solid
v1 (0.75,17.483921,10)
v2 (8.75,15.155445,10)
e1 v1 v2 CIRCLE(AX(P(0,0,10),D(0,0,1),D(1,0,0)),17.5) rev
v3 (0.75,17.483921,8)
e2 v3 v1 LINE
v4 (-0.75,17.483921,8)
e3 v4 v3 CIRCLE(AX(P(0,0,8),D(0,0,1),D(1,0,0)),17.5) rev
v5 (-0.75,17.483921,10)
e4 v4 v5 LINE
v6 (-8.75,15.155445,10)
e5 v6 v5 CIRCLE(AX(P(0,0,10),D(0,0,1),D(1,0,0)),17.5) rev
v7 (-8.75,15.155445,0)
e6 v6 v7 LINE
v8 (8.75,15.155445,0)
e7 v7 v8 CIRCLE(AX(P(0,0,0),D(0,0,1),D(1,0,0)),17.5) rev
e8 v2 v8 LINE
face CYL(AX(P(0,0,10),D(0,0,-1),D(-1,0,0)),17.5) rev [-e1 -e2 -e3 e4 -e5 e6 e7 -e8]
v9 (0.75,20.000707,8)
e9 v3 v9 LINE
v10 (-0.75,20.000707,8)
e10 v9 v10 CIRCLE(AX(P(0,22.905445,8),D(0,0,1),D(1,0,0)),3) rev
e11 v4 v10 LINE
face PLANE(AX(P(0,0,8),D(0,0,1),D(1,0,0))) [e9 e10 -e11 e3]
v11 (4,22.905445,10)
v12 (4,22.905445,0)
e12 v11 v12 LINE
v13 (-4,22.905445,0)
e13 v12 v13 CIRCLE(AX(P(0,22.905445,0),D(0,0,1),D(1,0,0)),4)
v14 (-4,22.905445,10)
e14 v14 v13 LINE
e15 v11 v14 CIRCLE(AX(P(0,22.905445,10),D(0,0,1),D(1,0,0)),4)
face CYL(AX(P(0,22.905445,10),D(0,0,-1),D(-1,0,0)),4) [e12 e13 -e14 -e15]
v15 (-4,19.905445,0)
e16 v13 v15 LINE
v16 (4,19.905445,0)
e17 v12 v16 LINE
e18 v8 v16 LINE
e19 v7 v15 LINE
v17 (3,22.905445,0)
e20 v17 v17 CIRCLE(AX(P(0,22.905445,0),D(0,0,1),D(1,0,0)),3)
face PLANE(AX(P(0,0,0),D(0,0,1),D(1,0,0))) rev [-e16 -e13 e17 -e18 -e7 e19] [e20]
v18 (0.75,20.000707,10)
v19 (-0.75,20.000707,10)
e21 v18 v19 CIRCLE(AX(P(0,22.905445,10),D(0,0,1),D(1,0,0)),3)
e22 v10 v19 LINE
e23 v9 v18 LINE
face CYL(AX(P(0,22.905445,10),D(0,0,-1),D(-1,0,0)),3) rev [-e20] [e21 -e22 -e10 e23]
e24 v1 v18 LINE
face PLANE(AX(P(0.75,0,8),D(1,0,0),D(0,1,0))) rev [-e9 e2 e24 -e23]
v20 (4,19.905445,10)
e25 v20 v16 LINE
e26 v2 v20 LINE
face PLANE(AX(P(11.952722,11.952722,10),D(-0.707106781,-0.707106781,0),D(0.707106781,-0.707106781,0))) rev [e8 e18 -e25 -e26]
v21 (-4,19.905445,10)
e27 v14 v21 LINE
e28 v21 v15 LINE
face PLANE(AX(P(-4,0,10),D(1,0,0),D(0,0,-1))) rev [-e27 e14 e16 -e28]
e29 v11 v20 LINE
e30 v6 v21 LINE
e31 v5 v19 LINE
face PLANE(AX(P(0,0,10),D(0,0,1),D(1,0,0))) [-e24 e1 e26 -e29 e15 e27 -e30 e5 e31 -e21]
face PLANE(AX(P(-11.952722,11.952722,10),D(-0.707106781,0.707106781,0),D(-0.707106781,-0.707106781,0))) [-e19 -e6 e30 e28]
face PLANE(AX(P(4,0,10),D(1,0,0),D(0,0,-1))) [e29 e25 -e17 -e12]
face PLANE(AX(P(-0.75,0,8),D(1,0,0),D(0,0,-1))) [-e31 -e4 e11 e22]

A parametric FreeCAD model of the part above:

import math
import FreeCAD as App
import Part
import Sketcher
from FreeCAD import Vector

doc = App.newDocument("Part")
body = doc.addObject("PartDesign::Body", "Body")

# Sketch on XY plane
sketch1 = body.newObject("Sketcher::SketchObject", "Sketch")
sketch1.AttachmentSupport = (doc.getObject("XY_Plane"), [""])
sketch1.MapMode = "FlatFace"
sketch1.addGeometry(Part.LineSegment(Vector(-4, 19.905445, 0), Vector(-8.75, 15.155445, 0)), False)
sketch1.addGeometry(Part.ArcOfCircle(Part.Circle(Vector(0, 0, 0), Vector(0, 0, 1), 17.5), math.radians(60), math.radians(120)), False)
sketch1.addGeometry(Part.LineSegment(Vector(8.75, 15.155445, 0), Vector(4, 19.905445, 0)), False)
sketch1.addGeometry(Part.LineSegment(Vector(4, 19.905445, 0), Vector(4, 22.905445, 0)), False)
sketch1.addGeometry(Part.ArcOfCircle(Part.Circle(Vector(0, 22.905445, 0), Vector(0, 0, 1), 4), math.radians(0), math.radians(180)), False)
sketch1.addGeometry(Part.LineSegment(Vector(-4, 22.905445, 0), Vector(-4, 19.905445, 0)), False)
sketch1.addGeometry(Part.Circle(Vector(0, 22.905445, 0), Vector(0, 0, 1), 3), False)
sketch1.addConstraint(Sketcher.Constraint("Coincident", 0, 2, 1, 2))
sketch1.addConstraint(Sketcher.Constraint("Coincident", 1, 1, 2, 1))
sketch1.addConstraint(Sketcher.Constraint("Coincident", 2, 2, 3, 1))
sketch1.addConstraint(Sketcher.Constraint("Tangent", 3, 2, 4, 1))
sketch1.addConstraint(Sketcher.Constraint("Tangent", 4, 2, 5, 1))
sketch1.addConstraint(Sketcher.Constraint("Coincident", 5, 2, 0, 1))
sketch1.addConstraint(Sketcher.Constraint("Vertical", 3))
sketch1.addConstraint(Sketcher.Constraint("Vertical", 5))
sketch1.addConstraint(Sketcher.Constraint("Coincident", 1, 3, -1, 1))
sketch1.addConstraint(Sketcher.Constraint("Coincident", 6, 3, 4, 3))
sketch1.addConstraint(Sketcher.Constraint("Symmetric", 2, 2, 5, 2, -2))
sketch1.addConstraint(Sketcher.Constraint("Perpendicular", 0, 2))
sketch1.addConstraint(Sketcher.Constraint("Horizontal", 0, 2, 1, 1))
sketch1.addConstraint(Sketcher.Constraint("Diameter", 6, 6.0))
sketch1.addConstraint(Sketcher.Constraint("Radius", 4, 4.0))
sketch1.addConstraint(Sketcher.Constraint("Radius", 1, 17.5))
sketch1.addConstraint(Sketcher.Constraint("DistanceY", 3, 1, 3, 2, 3.0))
sketch1.addConstraint(Sketcher.Constraint("DistanceX", 0, 2, 1, 1, 17.5))
pad1 = body.newObject("PartDesign::Pad", "Pad")
pad1.Profile = sketch1
pad1.Length = 10

# Sketch on XY plane
sketch2 = body.newObject("Sketcher::SketchObject", "Sketch001")
sketch2.AttachmentSupport = (doc.getObject("XY_Plane"), [""])
sketch2.MapMode = "FlatFace"
sketch2.AttachmentOffset = App.Placement(Vector(0, 0, 8), App.Rotation())
sketch2.addGeometry(Part.ArcOfCircle(Part.Circle(Vector(0, 22.905445, 0), Vector(0, 0, 1), 3), math.radians(-90), math.radians(-75.522488)), False)
sketch2.addGeometry(Part.ArcOfCircle(Part.Circle(Vector(0, 22.905445, 0), Vector(0, 0, 1), 3), math.radians(-104.477512), math.radians(-90)), False)
sketch2.addGeometry(Part.LineSegment(Vector(-0.75, 20.000707, 0), Vector(-0.75, 17.483921, 0)), False)
sketch2.addGeometry(Part.ArcOfCircle(Part.Circle(Vector(0, -0.000002, 0), Vector(0, 0, 1), 17.500002), math.radians(90), math.radians(92.456286)), False)
sketch2.addGeometry(Part.ArcOfCircle(Part.Circle(Vector(0, -0.000002, 0), Vector(0, 0, 1), 17.500002), math.radians(87.543714), math.radians(90)), False)
sketch2.addGeometry(Part.LineSegment(Vector(0.75, 17.483921, 0), Vector(0.75, 20.000707, 0)), False)
sketch2.addConstraint(Sketcher.Constraint("Tangent", 0, 1, 1, 2))
sketch2.addConstraint(Sketcher.Constraint("Coincident", 1, 1, 2, 1))
sketch2.addConstraint(Sketcher.Constraint("Coincident", 2, 2, 3, 2))
sketch2.addConstraint(Sketcher.Constraint("Tangent", 3, 1, 4, 2))
sketch2.addConstraint(Sketcher.Constraint("Coincident", 4, 1, 5, 1))
sketch2.addConstraint(Sketcher.Constraint("Coincident", 5, 2, 0, 2))
sketch2.addConstraint(Sketcher.Constraint("Vertical", 2))
sketch2.addConstraint(Sketcher.Constraint("Vertical", 5))
sketch2.addConstraint(Sketcher.Constraint("Coincident", 3, 3, -1, 1))
sketch2.addConstraint(Sketcher.Constraint("Equal", 0, 1))
sketch2.addConstraint(Sketcher.Constraint("Equal", 3, 4))
sketch2.addConstraint(Sketcher.Constraint("Symmetric", 1, 1, 5, 2, -2))
sketch2.addConstraint(Sketcher.Constraint("PointOnObject", 0, 1, -2))
sketch2.addConstraint(Sketcher.Constraint("PointOnObject", 3, 1, -2))
sketch2.addConstraint(Sketcher.Constraint("Radius", 0, 3.0))
sketch2.addConstraint(Sketcher.Constraint("DistanceY", -1, 1, 3, 1, 17.5))
sketch2.addConstraint(Sketcher.Constraint("DistanceX", 2, 2, 4, 1, 1.5))
sketch2.addConstraint(Sketcher.Constraint("DistanceY", 2, 2, 2, 1, 2.516786))
pocket1 = body.newObject("PartDesign::Pocket", "Pocket")
pocket1.Profile = sketch2
pocket1.Length = 2
pocket1.Reversed = True

doc.recompute()
